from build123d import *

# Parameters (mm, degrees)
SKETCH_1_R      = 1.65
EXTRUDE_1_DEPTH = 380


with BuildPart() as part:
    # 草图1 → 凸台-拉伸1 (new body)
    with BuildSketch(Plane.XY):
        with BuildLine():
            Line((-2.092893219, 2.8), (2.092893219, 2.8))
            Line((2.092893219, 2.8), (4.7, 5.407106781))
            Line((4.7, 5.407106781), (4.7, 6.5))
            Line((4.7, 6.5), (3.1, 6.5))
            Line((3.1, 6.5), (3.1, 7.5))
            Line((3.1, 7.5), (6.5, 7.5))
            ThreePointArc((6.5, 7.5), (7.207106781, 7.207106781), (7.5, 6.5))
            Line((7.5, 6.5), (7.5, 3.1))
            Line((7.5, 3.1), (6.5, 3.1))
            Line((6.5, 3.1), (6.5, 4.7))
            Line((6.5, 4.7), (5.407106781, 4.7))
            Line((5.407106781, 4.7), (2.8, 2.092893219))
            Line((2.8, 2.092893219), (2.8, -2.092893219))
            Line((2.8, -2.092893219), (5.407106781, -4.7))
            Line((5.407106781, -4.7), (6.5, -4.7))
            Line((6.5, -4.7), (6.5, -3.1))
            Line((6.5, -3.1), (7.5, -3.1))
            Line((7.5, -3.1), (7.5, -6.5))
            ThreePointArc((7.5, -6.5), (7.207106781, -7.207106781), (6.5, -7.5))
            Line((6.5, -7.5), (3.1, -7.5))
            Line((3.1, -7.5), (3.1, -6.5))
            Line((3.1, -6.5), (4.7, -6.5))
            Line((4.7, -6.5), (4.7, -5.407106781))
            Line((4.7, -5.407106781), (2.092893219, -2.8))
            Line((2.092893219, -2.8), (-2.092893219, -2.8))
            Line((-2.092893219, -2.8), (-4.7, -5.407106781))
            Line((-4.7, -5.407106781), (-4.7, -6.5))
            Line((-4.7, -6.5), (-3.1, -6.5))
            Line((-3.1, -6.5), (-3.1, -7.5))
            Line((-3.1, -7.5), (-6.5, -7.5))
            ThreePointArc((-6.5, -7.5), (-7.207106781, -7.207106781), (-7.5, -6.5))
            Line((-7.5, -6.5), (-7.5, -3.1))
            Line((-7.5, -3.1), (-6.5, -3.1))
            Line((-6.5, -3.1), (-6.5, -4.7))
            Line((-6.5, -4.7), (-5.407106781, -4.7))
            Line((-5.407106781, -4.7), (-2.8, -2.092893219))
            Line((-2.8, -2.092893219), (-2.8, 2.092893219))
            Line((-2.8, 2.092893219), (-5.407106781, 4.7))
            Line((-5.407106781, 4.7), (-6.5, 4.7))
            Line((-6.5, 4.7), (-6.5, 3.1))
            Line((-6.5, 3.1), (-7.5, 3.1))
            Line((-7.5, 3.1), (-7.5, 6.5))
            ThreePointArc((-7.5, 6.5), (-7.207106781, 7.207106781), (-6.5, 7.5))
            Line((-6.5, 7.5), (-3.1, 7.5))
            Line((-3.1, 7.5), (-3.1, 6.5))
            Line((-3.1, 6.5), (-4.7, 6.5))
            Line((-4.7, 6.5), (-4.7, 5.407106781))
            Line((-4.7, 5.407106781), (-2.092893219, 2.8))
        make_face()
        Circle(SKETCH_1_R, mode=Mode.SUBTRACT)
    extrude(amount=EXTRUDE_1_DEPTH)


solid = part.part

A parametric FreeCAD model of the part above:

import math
import FreeCAD as App
import Part
import Sketcher

V = App.Vector

doc = App.newDocument("Part")
body = doc.addObject("PartDesign::Body", "Body")

# Sketch on XY plane
sketch1 = body.newObject("Sketcher::SketchObject", "Sketch")
sketch1.AttachmentSupport = (doc.getObject("XY_Plane"), [""])
sketch1.MapMode = "FlatFace"
sketch1.addGeometry([
    Part.LineSegment(V(2.092893, 2.8, 0), V(-2.092893, 2.8, 0)),  # 0
    Part.LineSegment(V(-2.092893, 2.8, 0), V(-4.7, 5.407107, 0)),  # 1
    Part.LineSegment(V(-4.7, 5.407107, 0), V(-4.7, 6.5, 0)),  # 2
    Part.LineSegment(V(-4.7, 6.5, 0), V(-3.1, 6.5, 0)),  # 3
    Part.LineSegment(V(-3.1, 6.5, 0), V(-3.1, 7.5, 0)),  # 4
    Part.LineSegment(V(-3.1, 7.5, 0), V(-6.5, 7.5, 0)),  # 5
    Part.ArcOfCircle(Part.Circle(V(-6.5, 6.5, 0), V(0, 0, 1), 1), math.radians(90), math.radians(180)),  # 6
    Part.LineSegment(V(-7.5, 6.5, 0), V(-7.5, 3.1, 0)),  # 7
    Part.LineSegment(V(-7.5, 3.1, 0), V(-6.5, 3.1, 0)),  # 8
    Part.LineSegment(V(-6.5, 3.1, 0), V(-6.5, 4.7, 0)),  # 9
    Part.LineSegment(V(-6.5, 4.7, 0), V(-5.407107, 4.7, 0)),  # 10
    Part.LineSegment(V(-5.407107, 4.7, 0), V(-2.8, 2.092893, 0)),  # 11
    Part.LineSegment(V(-2.8, 2.092893, 0), V(-2.8, -2.092893, 0)),  # 12
    Part.LineSegment(V(-2.8, -2.092893, 0), V(-5.407107, -4.7, 0)),  # 13
    Part.LineSegment(V(-5.407107, -4.7, 0), V(-6.5, -4.7, 0)),  # 14
    Part.LineSegment(V(-6.5, -4.7, 0), V(-6.5, -3.1, 0)),  # 15
    Part.LineSegment(V(-6.5, -3.1, 0), V(-7.5, -3.1, 0)),  # 16
    Part.LineSegment(V(-7.5, -3.1, 0), V(-7.5, -6.5, 0)),  # 17
    Part.ArcOfCircle(Part.Circle(V(-6.5, -6.5, 0), V(0, 0, 1), 1), math.radians(-180), math.radians(-90)),  # 18
    Part.LineSegment(V(-6.5, -7.5, 0), V(-3.1, -7.5, 0)),  # 19
    Part.LineSegment(V(-3.1, -7.5, 0), V(-3.1, -6.5, 0)),  # 20
    Part.LineSegment(V(-3.1, -6.5, 0), V(-4.7, -6.5, 0)),  # 21
    Part.LineSegment(V(-4.7, -6.5, 0), V(-4.7, -5.407107, 0)),  # 22
    Part.LineSegment(V(-4.7, -5.407107, 0), V(-2.092893, -2.8, 0)),  # 23
    Part.LineSegment(V(-2.092893, -2.8, 0), V(2.092893, -2.8, 0)),  # 24
    Part.LineSegment(V(2.092893, -2.8, 0), V(4.7, -5.407107, 0)),  # 25
    Part.LineSegment(V(4.7, -5.407107, 0), V(4.7, -6.5, 0)),  # 26
    Part.LineSegment(V(4.7, -6.5, 0), V(3.1, -6.5, 0)),  # 27
    Part.LineSegment(V(3.1, -6.5, 0), V(3.1, -7.5, 0)),  # 28
    Part.LineSegment(V(3.1, -7.5, 0), V(6.5, -7.5, 0)),  # 29
    Part.ArcOfCircle(Part.Circle(V(6.5, -6.5, 0), V(0, 0, 1), 1), math.radians(-90), math.radians(0)),  # 30
    Part.LineSegment(V(7.5, -6.5, 0), V(7.5, -3.1, 0)),  # 31
    Part.LineSegment(V(7.5, -3.1, 0), V(6.5, -3.1, 0)),  # 32
    Part.LineSegment(V(6.5, -3.1, 0), V(6.5, -4.7, 0)),  # 33
    Part.LineSegment(V(6.5, -4.7, 0), V(5.407107, -4.7, 0)),  # 34
    Part.LineSegment(V(5.407107, -4.7, 0), V(2.8, -2.092893, 0)),  # 35
    Part.LineSegment(V(2.8, -2.092893, 0), V(2.8, 2.092893, 0)),  # 36
    Part.LineSegment(V(2.8, 2.092893, 0), V(5.407107, 4.7, 0)),  # 37
    Part.LineSegment(V(5.407107, 4.7, 0), V(6.5, 4.7, 0)),  # 38
    Part.LineSegment(V(6.5, 4.7, 0), V(6.5, 3.1, 0)),  # 39
    Part.LineSegment(V(6.5, 3.1, 0), V(7.5, 3.1, 0)),  # 40
    Part.LineSegment(V(7.5, 3.1, 0), V(7.5, 6.5, 0)),  # 41
    Part.ArcOfCircle(Part.Circle(V(6.5, 6.5, 0), V(0, 0, 1), 1), math.radians(0), math.radians(90)),  # 42
    Part.LineSegment(V(6.5, 7.5, 0), V(3.1, 7.5, 0)),  # 43
    Part.LineSegment(V(3.1, 7.5, 0), V(3.1, 6.5, 0)),  # 44
    Part.LineSegment(V(3.1, 6.5, 0), V(4.7, 6.5, 0)),  # 45
    Part.LineSegment(V(4.7, 6.5, 0), V(4.7, 5.407107, 0)),  # 46
    Part.LineSegment(V(4.7, 5.407107, 0), V(2.092893, 2.8, 0)),  # 47
    Part.Circle(V(0, 0, 0), V(0, 0, 1), 1.65),  # 48
], False)
sketch1.addConstraint([
    Sketcher.Constraint("Coincident", 0, 2, 1, 1),
    Sketcher.Constraint("Coincident", 1, 2, 2, 1),
    Sketcher.Constraint("Coincident", 2, 2, 3, 1),
    Sketcher.Constraint("Coincident", 3, 2, 4, 1),
    Sketcher.Constraint("Coincident", 4, 2, 5, 1),
    Sketcher.Constraint("Tangent", 5, 2, 6, 1),
    Sketcher.Constraint("Tangent", 6, 2, 7, 1),
    Sketcher.Constraint("Coincident", 7, 2, 8, 1),
    Sketcher.Constraint("Coincident", 8, 2, 9, 1),
    Sketcher.Constraint("Coincident", 9, 2, 10, 1),
    Sketcher.Constraint("Coincident", 10, 2, 11, 1),
    Sketcher.Constraint("Coincident", 11, 2, 12, 1),
    Sketcher.Constraint("Coincident", 12, 2, 13, 1),
    Sketcher.Constraint("Coincident", 13, 2, 14, 1),
    Sketcher.Constraint("Coincident", 14, 2, 15, 1),
    Sketcher.Constraint("Coincident", 15, 2, 16, 1),
    Sketcher.Constraint("Coincident", 16, 2, 17, 1),
    Sketcher.Constraint("Tangent", 17, 2, 18, 1),
    Sketcher.Constraint("Tangent", 18, 2, 19, 1),
    Sketcher.Constraint("Coincident", 19, 2, 20, 1),
    Sketcher.Constraint("Coincident", 20, 2, 21, 1),
    Sketcher.Constraint("Coincident", 21, 2, 22, 1),
    Sketcher.Constraint("Coincident", 22, 2, 23, 1),
    Sketcher.Constraint("Coincident", 23, 2, 24, 1),
    Sketcher.Constraint("Coincident", 24, 2, 25, 1),
    Sketcher.Constraint("Coincident", 25, 2, 26, 1),
    Sketcher.Constraint("Coincident", 26, 2, 27, 1),
    Sketcher.Constraint("Coincident", 27, 2, 28, 1),
    Sketcher.Constraint("Coincident", 28, 2, 29, 1),
    Sketcher.Constraint("Tangent", 29, 2, 30, 1),
    Sketcher.Constraint("Tangent", 30, 2, 31, 1),
    Sketcher.Constraint("Coincident", 31, 2, 32, 1),
    Sketcher.Constraint("Coincident", 32, 2, 33, 1),
    Sketcher.Constraint("Coincident", 33, 2, 34, 1),
    Sketcher.Constraint("Coincident", 34, 2, 35, 1),
    Sketcher.Constraint("Coincident", 35, 2, 36, 1),
    Sketcher.Constraint("Coincident", 36, 2, 37, 1),
    Sketcher.Constraint("Coincident", 37, 2, 38, 1),
    Sketcher.Constraint("Coincident", 38, 2, 39, 1),
    Sketcher.Constraint("Coincident", 39, 2, 40, 1),
    Sketcher.Constraint("Coincident", 40, 2, 41, 1),
    Sketcher.Constraint("Tangent", 41, 2, 42, 1),
    Sketcher.Constraint("Tangent", 42, 2, 43, 1),
    Sketcher.Constraint("Coincident", 43, 2, 44, 1),
    Sketcher.Constraint("Coincident", 44, 2, 45, 1),
    Sketcher.Constraint("Coincident", 45, 2, 46, 1),
    Sketcher.Constraint("Coincident", 46, 2, 47, 1),
    Sketcher.Constraint("Coincident", 47, 2, 0, 1),
    Sketcher.Constraint("Horizontal", 0),
    Sketcher.Constraint("Vertical", 2),
    Sketcher.Constraint("Horizontal", 3),
    Sketcher.Constraint("Vertical", 4),
    Sketcher.Constraint("Horizontal", 5),
    Sketcher.Constraint("Vertical", 7),
    Sketcher.Constraint("Horizontal", 8),
    Sketcher.Constraint("Vertical", 9),
    Sketcher.Constraint("Horizontal", 10),
    Sketcher.Constraint("Vertical", 12),
    Sketcher.Constraint("Horizontal", 14),
    Sketcher.Constraint("Vertical", 15),
    Sketcher.Constraint("Horizontal", 16),
    Sketcher.Constraint("Vertical", 17),
    Sketcher.Constraint("Horizontal", 19),
    Sketcher.Constraint("Vertical", 20),
    Sketcher.Constraint("Horizontal", 21),
    Sketcher.Constraint("Vertical", 22),
    Sketcher.Constraint("Horizontal", 24),
    Sketcher.Constraint("Vertical", 26),
    Sketcher.Constraint("Horizontal", 27),
    Sketcher.Constraint("Vertical", 28),
    Sketcher.Constraint("Horizontal", 29),
    Sketcher.Constraint("Vertical", 31),
    Sketcher.Constraint("Horizontal", 32),
    Sketcher.Constraint("Vertical", 33),
    Sketcher.Constraint("Horizontal", 34),
    Sketcher.Constraint("Vertical", 36),
    Sketcher.Constraint("Horizontal", 38),
    Sketcher.Constraint("Vertical", 39),
    Sketcher.Constraint("Horizontal", 40),
    Sketcher.Constraint("Vertical", 41),
    Sketcher.Constraint("Horizontal", 43),
    Sketcher.Constraint("Vertical", 44),
    Sketcher.Constraint("Horizontal", 45),
    Sketcher.Constraint("Vertical", 46),
    Sketcher.Constraint("Coincident", 48, 3, -1, 1),
    Sketcher.Constraint("Equal", 6, 18),
    Sketcher.Constraint("Equal", 18, 30),
    Sketcher.Constraint("Equal", 30, 42),
    Sketcher.Constraint("Symmetric", 6, 3, 30, 3, -1, 1),
    Sketcher.Constraint("Symmetric", 18, 3, 42, 3, -1, 1),
    Sketcher.Constraint("Symmetric", 0, 2, 24, 2, -1, 1),
    Sketcher.Constraint("Symmetric", 1, 2, 25, 2, -1, 1),
    Sketcher.Constraint("Symmetric", 3, 2, 27, 2, -1, 1),
    Sketcher.Constraint("Symmetric", 8, 2, 32, 2, -1, 1),
    Sketcher.Constraint("Symmetric", 10, 2, 34, 2, -1, 1),
    Sketcher.Constraint("Symmetric", 11, 2, 35, 2, -1, 1),
    Sketcher.Constraint("Symmetric", 13, 2, 37, 2, -1, 1),
    Sketcher.Constraint("Symmetric", 15, 2, 39, 2, -1, 1),
    Sketcher.Constraint("Symmetric", 20, 2, 44, 2, -1, 1),
    Sketcher.Constraint("Symmetric", 22, 2, 46, 2, -1, 1),
    Sketcher.Constraint("Symmetric", 18, 3, 30, 3, -2),
    Sketcher.Constraint("Symmetric", 22, 2, 25, 2, -2),
    Sketcher.Constraint("Symmetric", 20, 2, 27, 2, -2),
    Sketcher.Constraint("Symmetric", 15, 2, 32, 2, -2),
    Sketcher.Constraint("Symmetric", 13, 2, 34, 2, -2),
    Sketcher.Constraint("Parallel", 1, 11),
    Sketcher.Constraint("Perpendicular", 11, 13),
    Sketcher.Constraint("Parallel", 13, 23),
    Sketcher.Constraint("Perpendicular", 35, 37),
    Sketcher.Constraint("Parallel", 37, 47),
    Sketcher.Constraint("Horizontal", 42, 3, 2, 2),
    Sketcher.Constraint("Horizontal", 12, 2, 35, 2),
    Sketcher.Constraint("Vertical", 5, 2, 8, 2),
    Sketcher.Constraint("Equal", 38, 2),
    Sketcher.Constraint("Equal", 43, 7),
    Sketcher.Constraint("Equal", 45, 9),
    Sketcher.Constraint("Equal", 24, 12),
    Sketcher.Constraint("Equal", 1, 11),
    Sketcher.Constraint("Radius", 6, 1.0),
    Sketcher.Constraint("Diameter", 48, 3.3),
    Sketcher.Constraint("DistanceX", 3, 1, 3, 2, 1.6),
    Sketcher.Constraint("DistanceX", 5, 2, 5, 1, 3.4),
    Sketcher.Constraint("DistanceY", 18, 3, 6, 3, 13.0),
    Sketcher.Constraint("DistanceY", -1, 1, 0, 2, 2.8),
    Sketcher.Constraint("DistanceX", 0, 2, 0, 1, 4.185786),
])
pad1 = body.newObject("PartDesign::Pad", "Pad")
pad1.Profile = sketch1
pad1.Length = 380

doc.recompute()
